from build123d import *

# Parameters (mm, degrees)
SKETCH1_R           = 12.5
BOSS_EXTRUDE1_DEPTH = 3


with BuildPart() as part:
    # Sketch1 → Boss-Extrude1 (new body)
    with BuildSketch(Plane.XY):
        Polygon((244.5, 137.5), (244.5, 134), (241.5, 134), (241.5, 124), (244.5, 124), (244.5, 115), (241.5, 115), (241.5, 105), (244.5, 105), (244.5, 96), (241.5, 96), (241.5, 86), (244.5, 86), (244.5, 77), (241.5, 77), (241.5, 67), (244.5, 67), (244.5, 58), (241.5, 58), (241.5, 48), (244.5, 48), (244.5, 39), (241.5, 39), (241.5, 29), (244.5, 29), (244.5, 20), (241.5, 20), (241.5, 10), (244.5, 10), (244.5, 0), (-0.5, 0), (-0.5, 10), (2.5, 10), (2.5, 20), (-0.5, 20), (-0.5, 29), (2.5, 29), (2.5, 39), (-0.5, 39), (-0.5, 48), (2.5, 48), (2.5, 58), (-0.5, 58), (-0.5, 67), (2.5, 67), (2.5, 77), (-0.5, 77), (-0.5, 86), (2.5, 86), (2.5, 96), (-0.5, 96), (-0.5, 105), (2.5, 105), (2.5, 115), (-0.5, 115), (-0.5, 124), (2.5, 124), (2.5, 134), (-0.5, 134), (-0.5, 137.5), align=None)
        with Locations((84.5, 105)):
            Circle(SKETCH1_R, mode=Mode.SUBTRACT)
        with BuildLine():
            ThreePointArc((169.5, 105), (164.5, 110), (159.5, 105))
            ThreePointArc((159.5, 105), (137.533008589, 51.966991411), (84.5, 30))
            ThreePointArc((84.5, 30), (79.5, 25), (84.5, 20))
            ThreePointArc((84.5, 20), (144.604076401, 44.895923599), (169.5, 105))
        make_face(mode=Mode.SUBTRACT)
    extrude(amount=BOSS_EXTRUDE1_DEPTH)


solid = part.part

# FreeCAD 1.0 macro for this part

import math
import FreeCAD as App
import Part
import Sketcher


def add_polygon(sketch, points):
    """Adds a closed chain of lines whose ends are joined by coincident constraints."""
    first, n = sketch.GeometryCount, len(points)
    for a, b in zip(points, points[1:] + points[:1]):
        sketch.addGeometry(Part.LineSegment(App.Vector(*a, 0), App.Vector(*b, 0)), False)
    for i in range(n):
        sketch.addConstraint(Sketcher.Constraint("Coincident", first + i, 2, first + (i + 1) % n, 1))

doc = App.newDocument("Part")
body = doc.addObject("PartDesign::Body", "Body")

sketch1 = body.newObject("Sketcher::SketchObject", "Sketch")
sketch1.AttachmentSupport = (doc.getObject("XY_Plane"), [""])
sketch1.MapMode = "FlatFace"
add_polygon(sketch1, [(244.5, 134), (244.5, 137.5), (-0.5, 137.5), (-0.5, 134), (2.5, 134), (2.5, 124), (-0.5, 124), (-0.5, 115), (2.5, 115), (2.5, 105), (-0.5, 105), (-0.5, 96), (2.5, 96), (2.5, 86), (-0.5, 86), (-0.5, 77), (2.5, 77), (2.5, 67), (-0.5, 67), (-0.5, 58), (2.5, 58), (2.5, 48), (-0.5, 48), (-0.5, 39), (2.5, 39), (2.5, 29), (-0.5, 29), (-0.5, 20), (2.5, 20), (2.5, 10), (-0.5, 10), (-0.5, 0), (244.5, 0), (244.5, 10), (241.5, 10), (241.5, 20), (244.5, 20), (244.5, 29), (241.5, 29), (241.5, 39), (244.5, 39), (244.5, 48), (241.5, 48), (241.5, 58), (244.5, 58), (244.5, 67), (241.5, 67), (241.5, 77), (244.5, 77), (244.5, 86), (241.5, 86), (241.5, 96), (244.5, 96), (244.5, 105), (241.5, 105), (241.5, 115), (244.5, 115), (244.5, 124), (241.5, 124), (241.5, 134)])
sketch1.addGeometry(Part.ArcOfCircle(Part.Circle(App.Vector(84.5, 105, 0), App.Vector(0, 0, 1), 85), math.radians(-90), math.radians(0)), False)
sketch1.addGeometry(Part.ArcOfCircle(Part.Circle(App.Vector(84.5, 25, 0), App.Vector(0, 0, 1), 5), math.radians(90), math.radians(270)), False)
sketch1.addGeometry(Part.ArcOfCircle(Part.Circle(App.Vector(84.5, 105, 0), App.Vector(0, 0, 1), 75), math.radians(-90), math.radians(0)), False)
sketch1.addGeometry(Part.ArcOfCircle(Part.Circle(App.Vector(164.5, 105, 0), App.Vector(0, 0, 1), 5), math.radians(0), math.radians(180)), False)
sketch1.addGeometry(Part.Circle(App.Vector(84.5, 105, 0), App.Vector(0, 0, 1), 12.5), False)
sketch1.addConstraint(Sketcher.Constraint("Tangent", 60, 1, 61, 2))
sketch1.addConstraint(Sketcher.Constraint("Tangent", 61, 1, 62, 1))
sketch1.addConstraint(Sketcher.Constraint("Tangent", 62, 2, 63, 2))
sketch1.addConstraint(Sketcher.Constraint("Tangent", 63, 1, 60, 2))
sketch1.addConstraint(Sketcher.Constraint("Vertical", 0))
sketch1.addConstraint(Sketcher.Constraint("Horizontal", 1))
sketch1.addConstraint(Sketcher.Constraint("Vertical", 2))
sketch1.addConstraint(Sketcher.Constraint("Horizontal", 3))
sketch1.addConstraint(Sketcher.Constraint("Vertical", 4))
sketch1.addConstraint(Sketcher.Constraint("Horizontal", 5))
sketch1.addConstraint(Sketcher.Constraint("Vertical", 6))
sketch1.addConstraint(Sketcher.Constraint("Horizontal", 7))
sketch1.addConstraint(Sketcher.Constraint("Vertical", 8))
sketch1.addConstraint(Sketcher.Constraint("Horizontal", 9))
sketch1.addConstraint(Sketcher.Constraint("Vertical", 10))
sketch1.addConstraint(Sketcher.Constraint("Horizontal", 11))
sketch1.addConstraint(Sketcher.Constraint("Vertical", 12))
sketch1.addConstraint(Sketcher.Constraint("Horizontal", 13))
sketch1.addConstraint(Sketcher.Constraint("Vertical", 14))
sketch1.addConstraint(Sketcher.Constraint("Horizontal", 15))
sketch1.addConstraint(Sketcher.Constraint("Vertical", 16))
sketch1.addConstraint(Sketcher.Constraint("Horizontal", 17))
sketch1.addConstraint(Sketcher.Constraint("Vertical", 18))
sketch1.addConstraint(Sketcher.Constraint("Horizontal", 19))
sketch1.addConstraint(Sketcher.Constraint("Vertical", 20))
sketch1.addConstraint(Sketcher.Constraint("Horizontal", 21))
sketch1.addConstraint(Sketcher.Constraint("Vertical", 22))
sketch1.addConstraint(Sketcher.Constraint("Horizontal", 23))
sketch1.addConstraint(Sketcher.Constraint("Vertical", 24))
sketch1.addConstraint(Sketcher.Constraint("Horizontal", 25))
sketch1.addConstraint(Sketcher.Constraint("Vertical", 26))
sketch1.addConstraint(Sketcher.Constraint("Horizontal", 27))
sketch1.addConstraint(Sketcher.Constraint("Vertical", 28))
sketch1.addConstraint(Sketcher.Constraint("Horizontal", 29))
sketch1.addConstraint(Sketcher.Constraint("Vertical", 30))
sketch1.addConstraint(Sketcher.Constraint("Horizontal", 31))
sketch1.addConstraint(Sketcher.Constraint("Vertical", 32))
sketch1.addConstraint(Sketcher.Constraint("Horizontal", 33))
sketch1.addConstraint(Sketcher.Constraint("Vertical", 34))
sketch1.addConstraint(Sketcher.Constraint("Horizontal", 35))
sketch1.addConstraint(Sketcher.Constraint("Vertical", 36))
sketch1.addConstraint(Sketcher.Constraint("Horizontal", 37))
sketch1.addConstraint(Sketcher.Constraint("Vertical", 38))
sketch1.addConstraint(Sketcher.Constraint("Horizontal", 39))
sketch1.addConstraint(Sketcher.Constraint("Vertical", 40))
sketch1.addConstraint(Sketcher.Constraint("Horizontal", 41))
sketch1.addConstraint(Sketcher.Constraint("Vertical", 42))
sketch1.addConstraint(Sketcher.Constraint("Horizontal", 43))
sketch1.addConstraint(Sketcher.Constraint("Vertical", 44))
sketch1.addConstraint(Sketcher.Constraint("Horizontal", 45))
sketch1.addConstraint(Sketcher.Constraint("Vertical", 46))
sketch1.addConstraint(Sketcher.Constraint("Horizontal", 47))
sketch1.addConstraint(Sketcher.Constraint("Vertical", 48))
sketch1.addConstraint(Sketcher.Constraint("Horizontal", 49))
sketch1.addConstraint(Sketcher.Constraint("Vertical", 50))
sketch1.addConstraint(Sketcher.Constraint("Horizontal", 51))
sketch1.addConstraint(Sketcher.Constraint("Vertical", 52))
sketch1.addConstraint(Sketcher.Constraint("Horizontal", 53))
sketch1.addConstraint(Sketcher.Constraint("Vertical", 54))
sketch1.addConstraint(Sketcher.Constraint("Horizontal", 55))
sketch1.addConstraint(Sketcher.Constraint("Vertical", 56))
sketch1.addConstraint(Sketcher.Constraint("Horizontal", 57))
sketch1.addConstraint(Sketcher.Constraint("Vertical", 58))
sketch1.addConstraint(Sketcher.Constraint("Horizontal", 59))
sketch1.addConstraint(Sketcher.Constraint("Coincident", 62, 3, 60, 3))
sketch1.addConstraint(Sketcher.Constraint("Coincident", 64, 3, 60, 3))
sketch1.addConstraint(Sketcher.Constraint("PointOnObject", 30, 2, -1))
sketch1.addConstraint(Sketcher.Constraint("Horizontal", 62, 3, 63, 3))
sketch1.addConstraint(Sketcher.Constraint("Horizontal", 64, 3, 8, 2))
sketch1.addConstraint(Sketcher.Constraint("Horizontal", 29, 2, 32, 2))
sketch1.addConstraint(Sketcher.Constraint("Horizontal", 27, 2, 34, 2))
sketch1.addConstraint(Sketcher.Constraint("Horizontal", 25, 2, 36, 2))
sketch1.addConstraint(Sketcher.Constraint("Horizontal", 23, 2, 38, 2))
sketch1.addConstraint(Sketcher.Constraint("Horizontal", 21, 2, 40, 2))
sketch1.addConstraint(Sketcher.Constraint("Horizontal", 19, 2, 42, 2))
sketch1.addConstraint(Sketcher.Constraint("Horizontal", 17, 2, 44, 2))
sketch1.addConstraint(Sketcher.Constraint("Horizontal", 15, 2, 46, 2))
sketch1.addConstraint(Sketcher.Constraint("Horizontal", 13, 2, 48, 2))
sketch1.addConstraint(Sketcher.Constraint("Horizontal", 11, 2, 50, 2))
sketch1.addConstraint(Sketcher.Constraint("Horizontal", 9, 2, 52, 2))
sketch1.addConstraint(Sketcher.Constraint("Horizontal", 7, 2, 54, 2))
sketch1.addConstraint(Sketcher.Constraint("Horizontal", 5, 2, 56, 2))
sketch1.addConstraint(Sketcher.Constraint("Horizontal", 3, 2, 58, 2))
sketch1.addConstraint(Sketcher.Constraint("Horizontal", 35, 2, 60, 1))
sketch1.addConstraint(Sketcher.Constraint("Vertical", 60, 3, 61, 3))
sketch1.addConstraint(Sketcher.Constraint("Vertical", 2, 2, 5, 2))
sketch1.addConstraint(Sketcher.Constraint("Vertical", 4, 2, 7, 2))
sketch1.addConstraint(Sketcher.Constraint("Vertical", 6, 2, 9, 2))
sketch1.addConstraint(Sketcher.Constraint("Vertical", 8, 2, 11, 2))
sketch1.addConstraint(Sketcher.Constraint("Vertical", 10, 2, 13, 2))
sketch1.addConstraint(Sketcher.Constraint("Vertical", 12, 2, 15, 2))
sketch1.addConstraint(Sketcher.Constraint("Vertical", 14, 2, 17, 2))
sketch1.addConstraint(Sketcher.Constraint("Vertical", 16, 2, 19, 2))
sketch1.addConstraint(Sketcher.Constraint("Vertical", 18, 2, 21, 2))
sketch1.addConstraint(Sketcher.Constraint("Vertical", 20, 2, 23, 2))
sketch1.addConstraint(Sketcher.Constraint("Vertical", 22, 2, 25, 2))
sketch1.addConstraint(Sketcher.Constraint("Vertical", 24, 2, 27, 2))
sketch1.addConstraint(Sketcher.Constraint("Vertical", 26, 2, 29, 2))
sketch1.addConstraint(Sketcher.Constraint("Vertical", 0, 2, 31, 2))
sketch1.addConstraint(Sketcher.Constraint("Vertical", 32, 2, 35, 2))
sketch1.addConstraint(Sketcher.Constraint("Vertical", 34, 2, 37, 2))
sketch1.addConstraint(Sketcher.Constraint("Vertical", 36, 2, 39, 2))
sketch1.addConstraint(Sketcher.Constraint("Vertical", 38, 2, 41, 2))
sketch1.addConstraint(Sketcher.Constraint("Vertical", 40, 2, 43, 2))
sketch1.addConstraint(Sketcher.Constraint("Vertical", 42, 2, 45, 2))
sketch1.addConstraint(Sketcher.Constraint("Vertical", 44, 2, 47, 2))
sketch1.addConstraint(Sketcher.Constraint("Vertical", 46, 2, 49, 2))
sketch1.addConstraint(Sketcher.Constraint("Vertical", 48, 2, 51, 2))
sketch1.addConstraint(Sketcher.Constraint("Vertical", 50, 2, 53, 2))
sketch1.addConstraint(Sketcher.Constraint("Vertical", 52, 2, 55, 2))
sketch1.addConstraint(Sketcher.Constraint("Vertical", 54, 2, 57, 2))
sketch1.addConstraint(Sketcher.Constraint("Equal", 29, 33))
sketch1.addConstraint(Sketcher.Constraint("Equal", 4, 8))
sketch1.addConstraint(Sketcher.Constraint("Equal", 6, 10))
sketch1.addConstraint(Sketcher.Constraint("Equal", 8, 12))
sketch1.addConstraint(Sketcher.Constraint("Equal", 10, 14))
sketch1.addConstraint(Sketcher.Constraint("Equal", 12, 16))
sketch1.addConstraint(Sketcher.Constraint("Equal", 14, 18))
sketch1.addConstraint(Sketcher.Constraint("Equal", 16, 20))
sketch1.addConstraint(Sketcher.Constraint("Equal", 18, 22))
sketch1.addConstraint(Sketcher.Constraint("Equal", 20, 24))
sketch1.addConstraint(Sketcher.Constraint("Equal", 22, 26))
sketch1.addConstraint(Sketcher.Constraint("Equal", 24, 28))
sketch1.addConstraint(Sketcher.Constraint("Equal", 28, 30))
sketch1.addConstraint(Sketcher.Constraint("Diameter", 64, 25.0))
sketch1.addConstraint(Sketcher.Constraint("Radius", 60, 85.0))
sketch1.addConstraint(Sketcher.Constraint("Radius", 61, 5.0))
sketch1.addConstraint(Sketcher.Constraint("DistanceX", 1, 2, 1, 1, 245.0))
sketch1.addConstraint(Sketcher.Constraint("DistanceX", 3, 1, 3, 2, 3.0))
sketch1.addConstraint(Sketcher.Constraint("DistanceY", 4, 2, 4, 1, 10.0))
sketch1.addConstraint(Sketcher.Constraint("DistanceY", 0, 1, 0, 2, 3.5))
sketch1.addConstraint(Sketcher.Constraint("DistanceX", -1, 1, 60, 3, 84.5))
sketch1.addConstraint(Sketcher.Constraint("DistanceX", -1, 1, 0, 2, 244.5))
pad1 = body.newObject("PartDesign::Pad", "Pad")
pad1.Profile = sketch1
pad1.Length = 3

doc.recompute()
